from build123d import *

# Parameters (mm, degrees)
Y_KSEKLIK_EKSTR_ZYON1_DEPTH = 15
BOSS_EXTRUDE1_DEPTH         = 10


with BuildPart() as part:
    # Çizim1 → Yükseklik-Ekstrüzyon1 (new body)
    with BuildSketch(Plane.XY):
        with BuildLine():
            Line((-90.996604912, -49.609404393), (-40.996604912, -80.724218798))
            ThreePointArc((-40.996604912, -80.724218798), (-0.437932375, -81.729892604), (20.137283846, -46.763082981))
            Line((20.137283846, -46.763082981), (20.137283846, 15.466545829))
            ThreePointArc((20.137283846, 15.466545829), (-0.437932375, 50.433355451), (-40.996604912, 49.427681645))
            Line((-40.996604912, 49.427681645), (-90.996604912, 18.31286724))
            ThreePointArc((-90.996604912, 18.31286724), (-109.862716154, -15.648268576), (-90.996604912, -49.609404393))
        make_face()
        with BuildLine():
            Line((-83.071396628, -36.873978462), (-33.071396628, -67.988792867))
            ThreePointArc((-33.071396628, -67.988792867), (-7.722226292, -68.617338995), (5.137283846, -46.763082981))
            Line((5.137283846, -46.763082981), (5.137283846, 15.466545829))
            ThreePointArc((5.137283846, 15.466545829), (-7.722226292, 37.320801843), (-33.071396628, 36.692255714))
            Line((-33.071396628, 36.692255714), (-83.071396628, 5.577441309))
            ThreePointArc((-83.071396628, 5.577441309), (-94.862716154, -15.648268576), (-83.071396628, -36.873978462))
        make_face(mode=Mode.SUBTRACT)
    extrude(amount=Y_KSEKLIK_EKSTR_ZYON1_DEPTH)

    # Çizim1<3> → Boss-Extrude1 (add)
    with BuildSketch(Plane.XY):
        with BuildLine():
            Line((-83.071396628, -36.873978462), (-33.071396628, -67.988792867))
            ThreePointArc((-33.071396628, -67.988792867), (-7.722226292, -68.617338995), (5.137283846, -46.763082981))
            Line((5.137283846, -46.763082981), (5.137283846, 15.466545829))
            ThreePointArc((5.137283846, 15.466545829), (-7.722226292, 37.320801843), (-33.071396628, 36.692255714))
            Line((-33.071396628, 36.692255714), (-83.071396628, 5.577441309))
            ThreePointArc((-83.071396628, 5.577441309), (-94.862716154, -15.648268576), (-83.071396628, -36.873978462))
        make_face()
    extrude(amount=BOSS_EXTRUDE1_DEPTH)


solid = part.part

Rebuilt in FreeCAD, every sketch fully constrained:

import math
import FreeCAD as App
import Part
import Sketcher

V = App.Vector

doc = App.newDocument("Part")
body = doc.addObject("PartDesign::Body", "Body")

# Sketch on XY plane
sketch1 = body.newObject("Sketcher::SketchObject", "Sketch")
sketch1.AttachmentSupport = (doc.getObject("XY_Plane"), [""])
sketch1.MapMode = "FlatFace"
sketch1.addGeometry([
    Part.LineSegment(V(-91, -50, 0), V(-41, -81, 0)),  # 0
    Part.ArcOfCircle(Part.Circle(V(-20, -47, 0), V(0, 0, 1), 40), math.radians(-122), math.radians(0)),  # 1
    Part.LineSegment(V(20, -47, 0), V(20, 15, 0)),  # 2
    Part.ArcOfCircle(Part.Circle(V(-20, 15, 0), V(0, 0, 1), 40), math.radians(0), math.radians(122)),  # 3
    Part.LineSegment(V(-41, 49, 0), V(-91, 18, 0)),  # 4
    Part.ArcOfCircle(Part.Circle(V(-70, -16, 0), V(0, 0, 1), 40), math.radians(122), math.radians(238)),  # 5
    Part.LineSegment(V(-33, -68, 0), V(-83, -37, 0)),  # 6
    Part.ArcOfCircle(Part.Circle(V(-70, -16, 0), V(0, 0, 1), 25), math.radians(122), math.radians(238)),  # 7
    Part.LineSegment(V(-83, 6, 0), V(-33, 37, 0)),  # 8
    Part.ArcOfCircle(Part.Circle(V(-20, 15, 0), V(0, 0, 1), 25), math.radians(0), math.radians(122)),  # 9
    Part.LineSegment(V(5, 15, 0), V(5, -47, 0)),  # 10
    Part.ArcOfCircle(Part.Circle(V(-20, -47, 0), V(0, 0, 1), 25), math.radians(-122), math.radians(0)),  # 11
], False)
sketch1.addConstraint([
    Sketcher.Constraint("Tangent", 0, 2, 1, 1),
    Sketcher.Constraint("Tangent", 1, 2, 2, 1),
    Sketcher.Constraint("Tangent", 2, 2, 3, 1),
    Sketcher.Constraint("Tangent", 3, 2, 4, 1),
    Sketcher.Constraint("Tangent", 4, 2, 5, 1),
    Sketcher.Constraint("Tangent", 5, 2, 0, 1),
    Sketcher.Constraint("Tangent", 6, 2, 7, 2),
    Sketcher.Constraint("Tangent", 7, 1, 8, 1),
    Sketcher.Constraint("Tangent", 8, 2, 9, 2),
    Sketcher.Constraint("Tangent", 9, 1, 10, 1),
    Sketcher.Constraint("Tangent", 10, 2, 11, 2),
    Sketcher.Constraint("Tangent", 11, 1, 6, 1),
    Sketcher.Constraint("Vertical", 2),
    Sketcher.Constraint("Vertical", 10),
    Sketcher.Constraint("Coincident", 7, 3, 5, 3),
    Sketcher.Constraint("Coincident", 9, 3, 3, 3),
    Sketcher.Constraint("Coincident", 11, 3, 1, 3),
    Sketcher.Constraint("Equal", 1, 3),
    Sketcher.Constraint("Equal", 3, 5),
    Sketcher.Constraint("Equal", 7, 9),
    Sketcher.Constraint("Vertical", 0, 2, 3, 2),
    Sketcher.Constraint("Radius", 1, 40.0),
    Sketcher.Constraint("Radius", 7, 25.0),
    Sketcher.Constraint("DistanceX", 5, 3, 3, 3, 50.0),
    Sketcher.Constraint("DistanceY", 2, 1, 2, 2, 62.229629),
    Sketcher.Constraint("DistanceY", 5, 3, -1, 1, 15.648269),
    Sketcher.Constraint("DistanceX", 1, 3, -1, 1, 19.862716),
])
pad1 = body.newObject("PartDesign::Pad", "Pad")
pad1.Profile = sketch1
pad1.Length = 15

# Sketch on XY plane
sketch2 = body.newObject("Sketcher::SketchObject", "Sketch001")
sketch2.AttachmentSupport = (doc.getObject("XY_Plane"), [""])
sketch2.MapMode = "FlatFace"
sketch2.addGeometry([
    Part.LineSegment(V(-83, -37, 0), V(-33, -68, 0)),  # 0
    Part.ArcOfCircle(Part.Circle(V(-20, -47, 0), V(0, 0, 1), 25), math.radians(-122), math.radians(0)),  # 1
    Part.LineSegment(V(5, -47, 0), V(5, 15, 0)),  # 2
    Part.ArcOfCircle(Part.Circle(V(-20, 15, 0), V(0, 0, 1), 25), math.radians(0), math.radians(122)),  # 3
    Part.LineSegment(V(-33, 37, 0), V(-83, 6, 0)),  # 4
    Part.ArcOfCircle(Part.Circle(V(-70, -16, 0), V(0, 0, 1), 25), math.radians(122), math.radians(238)),  # 5
], False)
sketch2.addConstraint([
    Sketcher.Constraint("Tangent", 0, 2, 1, 1),
    Sketcher.Constraint("Tangent", 1, 2, 2, 1),
    Sketcher.Constraint("Tangent", 2, 2, 3, 1),
    Sketcher.Constraint("Tangent", 3, 2, 4, 1),
    Sketcher.Constraint("Tangent", 4, 2, 5, 1),
    Sketcher.Constraint("Tangent", 5, 2, 0, 1),
    Sketcher.Constraint("Vertical", 2),
    Sketcher.Constraint("Equal", 1, 3),
    Sketcher.Constraint("Equal", 3, 5),
    Sketcher.Constraint("Vertical", 0, 2, 3, 2),
    Sketcher.Constraint("Radius", 1, 25.0),
    Sketcher.Constraint("DistanceX", 5, 3, 1, 3, 50.0),
    Sketcher.Constraint("DistanceY", 2, 1, 2, 2, 62.229629),
    Sketcher.Constraint("DistanceY", 5, 3, -1, 1, 15.648269),
    Sketcher.Constraint("DistanceX", 1, 3, -1, 1, 19.862716),
])
pad2 = body.newObject("PartDesign::Pad", "Pad001")
pad2.Profile = sketch2
pad2.Length = 10

doc.recompute()
